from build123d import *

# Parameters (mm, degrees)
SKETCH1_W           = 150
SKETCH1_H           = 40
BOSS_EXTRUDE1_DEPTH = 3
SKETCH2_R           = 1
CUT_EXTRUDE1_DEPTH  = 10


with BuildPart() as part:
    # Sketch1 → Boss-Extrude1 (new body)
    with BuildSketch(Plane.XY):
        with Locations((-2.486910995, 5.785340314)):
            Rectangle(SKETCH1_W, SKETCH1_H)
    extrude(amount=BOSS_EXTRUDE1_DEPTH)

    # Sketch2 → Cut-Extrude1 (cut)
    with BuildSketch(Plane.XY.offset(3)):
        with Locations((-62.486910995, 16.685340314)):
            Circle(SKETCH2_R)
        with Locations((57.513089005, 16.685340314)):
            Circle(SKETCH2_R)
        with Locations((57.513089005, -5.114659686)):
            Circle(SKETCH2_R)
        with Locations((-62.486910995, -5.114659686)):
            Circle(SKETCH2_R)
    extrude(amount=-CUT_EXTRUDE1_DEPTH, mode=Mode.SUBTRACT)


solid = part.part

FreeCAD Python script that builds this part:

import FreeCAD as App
import Part
import Sketcher

V = App.Vector


def add_polygon(sketch, points):
    """Adds a closed chain of lines whose ends are joined by coincident constraints."""
    first, n = sketch.GeometryCount, len(points)
    for a, b in zip(points, points[1:] + points[:1]):
        sketch.addGeometry(Part.LineSegment(App.Vector(*a, 0), App.Vector(*b, 0)), False)
    for i in range(n):
        sketch.addConstraint(Sketcher.Constraint("Coincident", first + i, 2, first + (i + 1) % n, 1))

doc = App.newDocument("Part")
body = doc.addObject("PartDesign::Body", "Body")

# Sketch on XY plane
sketch1 = doc.addObject("Sketcher::SketchObject", "Sketch")
body.addObject(sketch1)
sketch1.AttachmentSupport = (doc.XY_Plane, [""])
sketch1.MapMode = "FlatFace"
add_polygon(sketch1, [(-77, 26), (-77, -14), (73, -14), (73, 26)])  # lines 0-3
sketch1.addConstraint([
    Sketcher.Constraint("Vertical", 0),
    Sketcher.Constraint("Horizontal", 1),
    Sketcher.Constraint("Vertical", 2),
    Sketcher.Constraint("Horizontal", 3),
    Sketcher.Constraint("DistanceX", 1, 1, 1, 2, 150.0),
    Sketcher.Constraint("DistanceY", 0, 2, 0, 1, 40.0),
    Sketcher.Constraint("DistanceX", 0, 2, -1, 1, 77.486911),
    Sketcher.Constraint("DistanceY", 0, 2, -1, 1, 14.21466),
])
pad1 = doc.addObject("PartDesign::Pad", "Pad")
body.addObject(pad1)
pad1.Profile = sketch1
pad1.Length = 3

# Sketch on XY plane
sketch2 = doc.addObject("Sketcher::SketchObject", "Sketch001")
body.addObject(sketch2)
sketch2.AttachmentSupport = (doc.XY_Plane, [""])
sketch2.MapMode = "FlatFace"
sketch2.AttachmentOffset = App.Placement(V(0, 0, 3), App.Rotation())
sketch2.addGeometry([
    Part.Circle(V(-62.5, 16.7, 0), V(0, 0, 1), 1),
    Part.Circle(V(57.5, 16.7, 0), V(0, 0, 1), 1),
    Part.Circle(V(57.5, -5.1, 0), V(0, 0, 1), 1),
    Part.Circle(V(-62.5, -5.1, 0), V(0, 0, 1), 1),
], False)
sketch2.addConstraint([
    Sketcher.Constraint("Equal", 0, 1),
    Sketcher.Constraint("Equal", 1, 2),
    Sketcher.Constraint("Equal", 2, 3),
    Sketcher.Constraint("Horizontal", 0, 3, 1, 3),
    Sketcher.Constraint("Horizontal", 2, 3, 3, 3),
    Sketcher.Constraint("Vertical", 1, 3, 2, 3),
    Sketcher.Constraint("Vertical", 0, 3, 3, 3),
    Sketcher.Constraint("Diameter", 0, 2.0),
    Sketcher.Constraint("DistanceX", 0, 3, 1, 3, 120.0),
    Sketcher.Constraint("DistanceY", 2, 3, 1, 3, 21.8),
    Sketcher.Constraint("DistanceX", 0, 3, -1, 1, 62.486911),
    Sketcher.Constraint("DistanceY", -1, 1, 0, 3, 16.68534),
])
pocket1 = doc.addObject("PartDesign::Pocket", "Pocket")
body.addObject(pocket1)
pocket1.Profile = sketch2
pocket1.Length = 10

doc.recompute()
